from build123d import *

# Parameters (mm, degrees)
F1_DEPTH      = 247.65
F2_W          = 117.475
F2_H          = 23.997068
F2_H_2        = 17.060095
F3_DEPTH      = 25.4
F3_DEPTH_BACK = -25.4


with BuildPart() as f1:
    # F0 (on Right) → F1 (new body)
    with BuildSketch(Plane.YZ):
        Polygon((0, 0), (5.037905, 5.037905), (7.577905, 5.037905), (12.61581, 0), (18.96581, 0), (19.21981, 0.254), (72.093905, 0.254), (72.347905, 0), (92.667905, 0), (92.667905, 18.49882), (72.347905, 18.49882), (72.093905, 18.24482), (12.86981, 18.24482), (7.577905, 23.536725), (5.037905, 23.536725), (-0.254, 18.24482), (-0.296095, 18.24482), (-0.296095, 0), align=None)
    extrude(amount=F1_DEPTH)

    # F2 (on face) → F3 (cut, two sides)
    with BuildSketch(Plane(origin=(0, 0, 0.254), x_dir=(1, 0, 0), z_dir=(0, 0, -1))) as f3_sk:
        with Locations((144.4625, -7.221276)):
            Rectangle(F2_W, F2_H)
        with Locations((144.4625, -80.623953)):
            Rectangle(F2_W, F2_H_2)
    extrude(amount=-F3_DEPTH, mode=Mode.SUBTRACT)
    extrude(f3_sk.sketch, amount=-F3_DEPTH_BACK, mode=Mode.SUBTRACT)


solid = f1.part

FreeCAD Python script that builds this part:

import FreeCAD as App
import Part
import Sketcher
from FreeCAD import Vector
Q = App.Units.Quantity

doc = App.newDocument("Part")
body = doc.addObject("PartDesign::Body", "Body")

# Sketch on YZ plane
sketch1 = doc.addObject("Sketcher::SketchObject", "Sketch")
body.addObject(sketch1)
sketch1.AttachmentSupport = (doc.YZ_Plane, [""])
sketch1.MapMode = "FlatFace"
sketch1.addGeometry([
    Part.LineSegment(Vector(0, 0, 0), Vector(5.038, 5.038, 0)),  # 0
    Part.LineSegment(Vector(5.038, 5.038, 0), Vector(7.578, 5.038, 0)),  # 1
    Part.LineSegment(Vector(7.578, 5.038, 0), Vector(12.616, 0, 0)),  # 2
    Part.LineSegment(Vector(12.616, 0, 0), Vector(18.966, 0, 0)),  # 3
    Part.LineSegment(Vector(18.966, 0, 0), Vector(19.22, 0.254, 0)),  # 4
    Part.LineSegment(Vector(19.22, 0.254, 0), Vector(72.094, 0.254, 0)),  # 5
    Part.LineSegment(Vector(72.094, 0.254, 0), Vector(72.348, 0, 0)),  # 6
    Part.LineSegment(Vector(72.348, 0, 0), Vector(92.668, 0, 0)),  # 7
    Part.LineSegment(Vector(92.668, 0, 0), Vector(92.668, 18.499, 0)),  # 8
    Part.LineSegment(Vector(92.668, 18.499, 0), Vector(72.348, 18.499, 0)),  # 9
    Part.LineSegment(Vector(72.348, 18.499, 0), Vector(72.094, 18.245, 0)),  # 10
    Part.LineSegment(Vector(72.094, 18.245, 0), Vector(12.87, 18.245, 0)),  # 11
    Part.LineSegment(Vector(12.87, 18.245, 0), Vector(7.578, 23.537, 0)),  # 12
    Part.LineSegment(Vector(7.578, 23.537, 0), Vector(5.038, 23.537, 0)),  # 13
    Part.LineSegment(Vector(5.038, 23.537, 0), Vector(-0.254, 18.245, 0)),  # 14
    Part.LineSegment(Vector(-0.254, 18.245, 0), Vector(-0.296, 18.245, 0)),  # 15
    Part.LineSegment(Vector(-0.296, 18.245, 0), Vector(-0.296, 0, 0)),  # 16
    Part.LineSegment(Vector(-0.296, 0, 0), Vector(0, 0, 0)),  # 17
], False)
sketch1.addConstraint([
    Sketcher.Constraint("Coincident", 0, 2, 1, 1),
    Sketcher.Constraint("Coincident", 1, 2, 2, 1),
    Sketcher.Constraint("Coincident", 2, 2, 3, 1),
    Sketcher.Constraint("Coincident", 3, 2, 4, 1),
    Sketcher.Constraint("Coincident", 4, 2, 5, 1),
    Sketcher.Constraint("Coincident", 5, 2, 6, 1),
    Sketcher.Constraint("Coincident", 6, 2, 7, 1),
    Sketcher.Constraint("Coincident", 7, 2, 8, 1),
    Sketcher.Constraint("Coincident", 8, 2, 9, 1),
    Sketcher.Constraint("Coincident", 9, 2, 10, 1),
    Sketcher.Constraint("Coincident", 10, 2, 11, 1),
    Sketcher.Constraint("Coincident", 11, 2, 12, 1),
    Sketcher.Constraint("Coincident", 12, 2, 13, 1),
    Sketcher.Constraint("Coincident", 13, 2, 14, 1),
    Sketcher.Constraint("Coincident", 14, 2, 15, 1),
    Sketcher.Constraint("Coincident", 15, 2, 16, 1),
    Sketcher.Constraint("Coincident", 16, 2, 17, 1),
    Sketcher.Constraint("Coincident", 17, 2, 0, 1),
    Sketcher.Constraint("Horizontal", 1),
    Sketcher.Constraint("Horizontal", 3),
    Sketcher.Constraint("Horizontal", 5),
    Sketcher.Constraint("Horizontal", 7),
    Sketcher.Constraint("Vertical", 8),
    Sketcher.Constraint("Horizontal", 9),
    Sketcher.Constraint("Horizontal", 11),
    Sketcher.Constraint("Horizontal", 13),
    Sketcher.Constraint("Horizontal", 15),
    Sketcher.Constraint("Vertical", 16),
    Sketcher.Constraint("Horizontal", 17),
    Sketcher.Constraint("Coincident", 17, 2, -1, 1),
    Sketcher.Constraint("PointOnObject", 2, 2, -1),
    Sketcher.Constraint("PointOnObject", 6, 2, -1),
    Sketcher.Constraint("Perpendicular", 0, 2),
    Sketcher.Constraint("Perpendicular", 2, 4),
    Sketcher.Constraint("Perpendicular", 4, 6),
    Sketcher.Constraint("Perpendicular", 6, 10),
    Sketcher.Constraint("Perpendicular", 10, 12),
    Sketcher.Constraint("Perpendicular", 12, 14),
    Sketcher.Constraint("Horizontal", 11, 2, 14, 2),
    Sketcher.Constraint("Vertical", 6, 2, 9, 2),
    Sketcher.Constraint("Vertical", 5, 2, 10, 2),
    Sketcher.Constraint("Vertical", 1, 2, 12, 2),
    Sketcher.Constraint("Vertical", 0, 2, 13, 2),
    Sketcher.Constraint("Equal", 0, 2),
    Sketcher.Constraint("DistanceX", 1, 1, 1, 2, Q("0.1 in")),
    Sketcher.Constraint("DistanceX", 7, 1, 7, 2, Q("0.8 in")),
    Sketcher.Constraint("DistanceX", 3, 1, 3, 2, Q("0.25 in")),
    Sketcher.Constraint("DistanceY", -1, 1, 4, 2, Q("0.01 in")),
    Sketcher.Constraint("DistanceX", 14, 2, -1, 1, Q("0.01 in")),
    Sketcher.Constraint("DistanceX", 1, 2, 5, 2, Q("2.54 in")),
    Sketcher.Constraint("DistanceX", 15, 2, 13, 2, Q("0.21 in")),
    Sketcher.Constraint("DistanceY", 8, 1, 8, 2, Q("0.7283 in")),
    Sketcher.Constraint("DistanceX", 5, 1, 5, 2, 52.874095),
])
pad1 = doc.addObject("PartDesign::Pad", "Pad")
body.addObject(pad1)
pad1.Profile = sketch1
pad1.Length = Q("9.75 in")

# Sketch on XY plane
sketch2 = doc.addObject("Sketcher::SketchObject", "Sketch001")
body.addObject(sketch2)
sketch2.AttachmentSupport = (doc.XY_Plane, [""])
sketch2.MapMode = "FlatFace"
sketch2.AttachmentOffset = App.Placement(Vector(0, 0, 0.01 * 25.4), App.Rotation())
sketch2.addGeometry([
    Part.LineSegment(Vector(86, -5, 0), Vector(86, 19, 0)),  # 0
    Part.LineSegment(Vector(86, 19, 0), Vector(203, 19, 0)),  # 1
    Part.LineSegment(Vector(203, 19, 0), Vector(203, -5, 0)),  # 2
    Part.LineSegment(Vector(203, -5, 0), Vector(86, -5, 0)),  # 3
    Part.LineSegment(Vector(86, 72, 0), Vector(86, 89, 0)),  # 4
    Part.LineSegment(Vector(86, 89, 0), Vector(203, 89, 0)),  # 5
    Part.LineSegment(Vector(203, 89, 0), Vector(203, 72, 0)),  # 6
    Part.LineSegment(Vector(203, 72, 0), Vector(86, 72, 0)),  # 7
], False)
sketch2.addConstraint([
    Sketcher.Constraint("Coincident", 0, 2, 1, 1),
    Sketcher.Constraint("Coincident", 1, 2, 2, 1),
    Sketcher.Constraint("Coincident", 2, 2, 3, 1),
    Sketcher.Constraint("Coincident", 3, 2, 0, 1),
    Sketcher.Constraint("Coincident", 4, 2, 5, 1),
    Sketcher.Constraint("Coincident", 5, 2, 6, 1),
    Sketcher.Constraint("Coincident", 6, 2, 7, 1),
    Sketcher.Constraint("Coincident", 7, 2, 4, 1),
    Sketcher.Constraint("Vertical", 0),
    Sketcher.Constraint("Horizontal", 1),
    Sketcher.Constraint("Vertical", 2),
    Sketcher.Constraint("Horizontal", 3),
    Sketcher.Constraint("Vertical", 4),
    Sketcher.Constraint("Horizontal", 5),
    Sketcher.Constraint("Vertical", 6),
    Sketcher.Constraint("Horizontal", 7),
    Sketcher.Constraint("Vertical", 3, 2, 4, 2),
    Sketcher.Constraint("Vertical", 2, 2, 5, 2),
    Sketcher.Constraint("DistanceX", -1, 1, 1, 2, Q("8 in")),
    Sketcher.Constraint("DistanceX", 1, 1, 1, 2, Q("4.625 in")),
    Sketcher.Constraint("DistanceY", -1, 1, 4, 2, Q("3.51 in")),
    Sketcher.Constraint("DistanceY", 0, 1, 0, 2, 23.997068),
    Sketcher.Constraint("DistanceY", 4, 1, 4, 2, 17.060095),
    Sketcher.Constraint("DistanceY", -1, 1, 0, 2, 19.21981),
])
pocket1 = doc.addObject("PartDesign::Pocket", "Pocket")
body.addObject(pocket1)
pocket1.Profile = sketch2
pocket1.Type = "ThroughAll"
pocket1.Midplane = True

doc.recompute()
